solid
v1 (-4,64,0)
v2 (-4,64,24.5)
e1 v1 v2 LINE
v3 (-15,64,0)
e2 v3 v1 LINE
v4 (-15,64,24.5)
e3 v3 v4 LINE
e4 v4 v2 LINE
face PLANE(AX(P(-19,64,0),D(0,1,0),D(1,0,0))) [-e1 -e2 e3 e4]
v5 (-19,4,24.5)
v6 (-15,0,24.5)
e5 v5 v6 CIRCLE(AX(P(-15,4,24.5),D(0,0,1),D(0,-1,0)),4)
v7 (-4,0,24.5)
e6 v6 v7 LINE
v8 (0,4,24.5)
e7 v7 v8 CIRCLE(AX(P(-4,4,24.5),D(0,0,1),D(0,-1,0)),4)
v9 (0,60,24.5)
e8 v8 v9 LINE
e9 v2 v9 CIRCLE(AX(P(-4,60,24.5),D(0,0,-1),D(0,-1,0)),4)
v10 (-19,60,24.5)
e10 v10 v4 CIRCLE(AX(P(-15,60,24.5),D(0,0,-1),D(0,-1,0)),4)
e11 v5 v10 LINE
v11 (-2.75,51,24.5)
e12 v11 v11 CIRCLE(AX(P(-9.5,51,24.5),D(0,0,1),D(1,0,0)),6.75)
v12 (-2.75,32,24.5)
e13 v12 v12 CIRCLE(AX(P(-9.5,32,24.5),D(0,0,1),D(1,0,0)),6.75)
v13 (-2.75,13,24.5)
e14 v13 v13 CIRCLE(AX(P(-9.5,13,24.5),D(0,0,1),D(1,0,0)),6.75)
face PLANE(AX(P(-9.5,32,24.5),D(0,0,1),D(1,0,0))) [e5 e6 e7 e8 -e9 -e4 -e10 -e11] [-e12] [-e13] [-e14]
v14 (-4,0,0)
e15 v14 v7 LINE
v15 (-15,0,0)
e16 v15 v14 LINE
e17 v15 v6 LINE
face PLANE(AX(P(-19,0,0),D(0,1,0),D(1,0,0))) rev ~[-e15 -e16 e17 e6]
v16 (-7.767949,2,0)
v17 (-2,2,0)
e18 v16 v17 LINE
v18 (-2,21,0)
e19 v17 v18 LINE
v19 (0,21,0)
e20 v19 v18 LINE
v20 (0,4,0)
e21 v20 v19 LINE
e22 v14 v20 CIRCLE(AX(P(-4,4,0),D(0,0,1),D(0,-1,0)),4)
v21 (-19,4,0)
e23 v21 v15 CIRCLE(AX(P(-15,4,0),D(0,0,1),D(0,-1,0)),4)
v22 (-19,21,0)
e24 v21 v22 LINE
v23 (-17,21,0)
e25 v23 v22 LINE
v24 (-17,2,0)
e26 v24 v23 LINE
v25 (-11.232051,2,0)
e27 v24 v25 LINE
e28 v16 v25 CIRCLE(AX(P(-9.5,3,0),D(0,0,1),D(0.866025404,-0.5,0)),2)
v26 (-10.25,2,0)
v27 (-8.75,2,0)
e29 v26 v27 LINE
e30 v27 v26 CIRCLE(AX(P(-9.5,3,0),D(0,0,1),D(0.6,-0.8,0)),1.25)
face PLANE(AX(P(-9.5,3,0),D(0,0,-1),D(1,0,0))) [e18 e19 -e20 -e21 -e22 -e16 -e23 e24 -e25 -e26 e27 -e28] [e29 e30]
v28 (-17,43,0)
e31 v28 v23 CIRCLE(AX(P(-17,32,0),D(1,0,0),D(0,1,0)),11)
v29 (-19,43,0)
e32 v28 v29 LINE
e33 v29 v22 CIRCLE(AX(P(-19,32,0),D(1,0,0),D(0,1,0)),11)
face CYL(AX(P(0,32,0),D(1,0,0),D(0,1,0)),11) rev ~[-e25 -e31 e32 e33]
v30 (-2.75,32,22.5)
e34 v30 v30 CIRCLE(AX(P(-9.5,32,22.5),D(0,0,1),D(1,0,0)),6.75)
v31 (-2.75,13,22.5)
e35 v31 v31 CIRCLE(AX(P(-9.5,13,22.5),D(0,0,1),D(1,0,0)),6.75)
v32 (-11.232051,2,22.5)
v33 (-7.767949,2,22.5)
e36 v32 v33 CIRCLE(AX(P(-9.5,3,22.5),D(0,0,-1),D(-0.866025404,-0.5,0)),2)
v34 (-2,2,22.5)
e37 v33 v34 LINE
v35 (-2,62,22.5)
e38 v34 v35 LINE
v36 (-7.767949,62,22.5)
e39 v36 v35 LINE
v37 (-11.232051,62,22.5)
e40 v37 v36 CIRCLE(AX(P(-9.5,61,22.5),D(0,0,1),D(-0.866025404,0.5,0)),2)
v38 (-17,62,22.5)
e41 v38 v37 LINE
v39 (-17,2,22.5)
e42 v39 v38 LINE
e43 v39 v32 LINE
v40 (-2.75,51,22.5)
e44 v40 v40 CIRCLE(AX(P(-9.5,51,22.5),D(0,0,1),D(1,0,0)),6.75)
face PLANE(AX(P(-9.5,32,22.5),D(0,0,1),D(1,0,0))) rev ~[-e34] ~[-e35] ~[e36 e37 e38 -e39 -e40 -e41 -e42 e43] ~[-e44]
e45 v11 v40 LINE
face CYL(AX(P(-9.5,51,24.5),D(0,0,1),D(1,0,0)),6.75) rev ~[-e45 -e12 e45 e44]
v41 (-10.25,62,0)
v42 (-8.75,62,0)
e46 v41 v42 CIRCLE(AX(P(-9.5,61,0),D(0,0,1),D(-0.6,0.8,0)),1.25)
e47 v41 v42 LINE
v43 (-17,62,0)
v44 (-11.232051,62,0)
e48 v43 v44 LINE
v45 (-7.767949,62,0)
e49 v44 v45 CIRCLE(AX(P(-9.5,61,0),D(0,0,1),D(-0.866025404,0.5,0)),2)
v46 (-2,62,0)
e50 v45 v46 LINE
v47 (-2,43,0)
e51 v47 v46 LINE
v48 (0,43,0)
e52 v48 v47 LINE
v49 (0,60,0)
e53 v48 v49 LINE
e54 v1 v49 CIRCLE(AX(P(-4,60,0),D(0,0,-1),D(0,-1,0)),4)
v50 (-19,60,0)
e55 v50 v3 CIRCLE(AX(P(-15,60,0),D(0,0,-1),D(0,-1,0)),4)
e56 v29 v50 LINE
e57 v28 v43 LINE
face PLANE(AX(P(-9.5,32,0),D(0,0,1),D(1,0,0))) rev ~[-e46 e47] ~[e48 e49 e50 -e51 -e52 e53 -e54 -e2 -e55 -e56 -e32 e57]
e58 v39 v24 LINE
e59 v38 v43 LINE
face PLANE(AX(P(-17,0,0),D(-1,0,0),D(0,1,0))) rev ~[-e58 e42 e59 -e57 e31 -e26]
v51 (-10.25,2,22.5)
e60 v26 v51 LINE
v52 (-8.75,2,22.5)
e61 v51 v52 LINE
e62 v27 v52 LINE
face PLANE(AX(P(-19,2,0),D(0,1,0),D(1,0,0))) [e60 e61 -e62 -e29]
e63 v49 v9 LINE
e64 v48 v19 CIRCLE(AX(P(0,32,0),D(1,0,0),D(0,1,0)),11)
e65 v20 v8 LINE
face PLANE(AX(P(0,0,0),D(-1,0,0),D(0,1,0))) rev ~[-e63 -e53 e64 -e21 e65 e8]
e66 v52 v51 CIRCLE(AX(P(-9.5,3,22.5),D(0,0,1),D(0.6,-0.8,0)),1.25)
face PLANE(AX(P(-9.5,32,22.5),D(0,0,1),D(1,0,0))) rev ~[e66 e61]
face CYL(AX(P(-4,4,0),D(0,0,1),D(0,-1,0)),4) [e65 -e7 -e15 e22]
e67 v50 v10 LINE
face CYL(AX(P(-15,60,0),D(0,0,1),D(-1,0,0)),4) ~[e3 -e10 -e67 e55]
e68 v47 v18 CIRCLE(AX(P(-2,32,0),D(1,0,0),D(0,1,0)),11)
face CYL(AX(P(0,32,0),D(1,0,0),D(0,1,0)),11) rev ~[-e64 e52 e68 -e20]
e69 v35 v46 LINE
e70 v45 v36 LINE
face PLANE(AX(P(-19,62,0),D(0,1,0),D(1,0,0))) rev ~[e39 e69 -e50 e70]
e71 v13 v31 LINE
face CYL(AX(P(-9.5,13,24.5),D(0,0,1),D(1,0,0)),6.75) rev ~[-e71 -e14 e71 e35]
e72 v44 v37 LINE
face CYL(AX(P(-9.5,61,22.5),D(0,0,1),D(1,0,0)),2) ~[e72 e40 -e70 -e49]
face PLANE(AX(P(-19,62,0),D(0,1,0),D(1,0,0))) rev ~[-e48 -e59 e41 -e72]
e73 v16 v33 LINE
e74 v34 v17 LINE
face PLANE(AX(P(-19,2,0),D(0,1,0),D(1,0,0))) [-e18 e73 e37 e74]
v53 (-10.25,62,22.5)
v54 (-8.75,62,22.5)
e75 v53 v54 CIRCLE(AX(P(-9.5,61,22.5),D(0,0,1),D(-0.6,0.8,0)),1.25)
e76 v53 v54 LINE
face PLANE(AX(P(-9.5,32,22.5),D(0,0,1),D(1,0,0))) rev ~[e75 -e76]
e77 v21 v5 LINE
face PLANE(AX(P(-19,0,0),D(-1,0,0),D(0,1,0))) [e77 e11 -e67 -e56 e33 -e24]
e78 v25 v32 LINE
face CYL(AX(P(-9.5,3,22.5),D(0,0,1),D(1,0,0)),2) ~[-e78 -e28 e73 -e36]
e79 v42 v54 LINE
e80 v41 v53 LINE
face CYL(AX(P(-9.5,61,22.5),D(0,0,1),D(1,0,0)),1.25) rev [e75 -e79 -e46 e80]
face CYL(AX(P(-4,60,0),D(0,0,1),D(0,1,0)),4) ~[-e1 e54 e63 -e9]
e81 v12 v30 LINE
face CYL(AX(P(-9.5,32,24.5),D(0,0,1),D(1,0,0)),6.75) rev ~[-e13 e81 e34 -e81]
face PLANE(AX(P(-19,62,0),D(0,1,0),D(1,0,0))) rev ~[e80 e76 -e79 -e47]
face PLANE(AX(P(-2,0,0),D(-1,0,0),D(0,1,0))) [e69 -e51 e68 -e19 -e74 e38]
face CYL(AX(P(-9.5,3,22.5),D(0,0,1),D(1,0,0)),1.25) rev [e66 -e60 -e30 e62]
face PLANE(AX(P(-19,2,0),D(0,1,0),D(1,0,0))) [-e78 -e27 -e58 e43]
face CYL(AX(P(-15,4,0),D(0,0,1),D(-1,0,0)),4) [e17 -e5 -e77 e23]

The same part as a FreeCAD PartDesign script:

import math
import FreeCAD as App
import Part
import Sketcher
from FreeCAD import Vector
Q = App.Units.Quantity


def edges_at(feature, points):
    """Names of the edges that pass closest to the given points."""
    edges = feature.Shape.Edges
    near = lambda p: min(range(len(edges)), key=lambda i: edges[i].distToShape(Part.Vertex(*p))[0])
    return sorted({f"Edge{near(p) + 1}" for p in points})


def faces_at(feature, points):
    """Names of the faces that lie closest to the given points."""
    faces = feature.Shape.Faces
    near = lambda p: min(range(len(faces)), key=lambda i: faces[i].distToShape(Part.Vertex(*p))[0])
    return sorted({f"Face{near(p) + 1}" for p in points})


def add_polygon(sketch, points):
    """Adds a closed chain of lines whose ends are joined by coincident constraints."""
    first, n = sketch.GeometryCount, len(points)
    for a, b in zip(points, points[1:] + points[:1]):
        sketch.addGeometry(Part.LineSegment(App.Vector(*a, 0), App.Vector(*b, 0)), False)
    for i in range(n):
        sketch.addConstraint(Sketcher.Constraint("Coincident", first + i, 2, first + (i + 1) % n, 1))

doc = App.newDocument("Part")
body = doc.addObject("PartDesign::Body", "Body")

sketch1 = doc.addObject("Sketcher::SketchObject", "Sketch")
body.addObject(sketch1)
sketch1.AttachmentSupport = (doc.XY_Plane, [""])
sketch1.MapMode = "FlatFace"
add_polygon(sketch1, [(-19, 64), (-19, 0), (0, 0), (0, 64)])
sketch1.addConstraint([
    Sketcher.Constraint("Vertical", 0),
    Sketcher.Constraint("Horizontal", 1),
    Sketcher.Constraint("Vertical", 2),
    Sketcher.Constraint("Horizontal", 3),
    Sketcher.Constraint("Coincident", 1, 2, -1, 1),
    Sketcher.Constraint("DistanceX", 1, 1, 1, 2, Q("19 mm")),
    Sketcher.Constraint("DistanceY", 0, 2, 0, 1, Q("64 mm")),
])
pad1 = doc.addObject("PartDesign::Pad", "Pad")
body.addObject(pad1)
pad1.Profile = sketch1
pad1.Length = 24.5

sketch2 = doc.addObject("Sketcher::SketchObject", "Sketch001")
body.addObject(sketch2)
sketch2.AttachmentSupport = (doc.YZ_Plane, [""])
sketch2.MapMode = "FlatFace"
sketch2.addGeometry([
    Part.LineSegment(Vector(21, 0, 0), Vector(43, 0, 0)),
    Part.ArcOfCircle(Part.Circle(Vector(32, 0, 0), Vector(0, 0, 1), 11), math.radians(0), math.radians(180)),
], False)
sketch2.addConstraint([
    Sketcher.Constraint("Coincident", 0, 1, 1, 2),
    Sketcher.Constraint("Coincident", 1, 1, 0, 2),
    Sketcher.Constraint("Horizontal", 0),
    Sketcher.Constraint("PointOnObject", 1, 3, -1),
    Sketcher.Constraint("PointOnObject", 0, 1, -1),
    Sketcher.Constraint("Radius", 1, Q("11 mm")),
    Sketcher.Constraint("DistanceX", -1, 1, 1, 3, Q("32 mm")),
])
pocket1 = doc.addObject("PartDesign::Pocket", "Pocket")
body.addObject(pocket1)
pocket1.Profile = sketch2
pocket1.Length = 25
doc.recompute()

thickness = doc.addObject("PartDesign::Thickness", "Thickness")
body.addObject(thickness)
thickness.Base = (pocket1, faces_at(pocket1, [(-9.5, 32, 11), (-9.5, 10.5, 0), (-9.5, 53.5, 0)]))
thickness.Value = 2
thickness.Reversed = True
thickness.Join = "Arc"
doc.recompute()

fillet = doc.addObject("PartDesign::Fillet", "Fillet")
body.addObject(fillet)
fillet.Base = (thickness, edges_at(thickness, [
    (0, 0, 12.25),
    (0, 64, 12.25),
    (-19, 64, 12.25),
    (-19, 0, 12.25),
]))
fillet.Radius = 4

sketch3 = doc.addObject("Sketcher::SketchObject", "Sketch002")
body.addObject(sketch3)
sketch3.AttachmentSupport = (doc.XY_Plane, [""])
sketch3.MapMode = "FlatFace"
sketch3.AttachmentOffset = App.Placement(Vector(0, 0, 24.5), App.Rotation())
sketch3.addGeometry(Part.Circle(Vector(-9.5, 32, 0), Vector(0, 0, 1), 6.75), False)
sketch3.addConstraint([
    Sketcher.Constraint("Diameter", 0, Q("13.5 mm")),
    Sketcher.Constraint("DistanceY", -1, 1, 0, 3, Q("32 mm")),
    Sketcher.Constraint("DistanceX", 0, 3, -1, 1, Q("9.5 mm")),
])
pocket2 = doc.addObject("PartDesign::Pocket", "Pocket001")
body.addObject(pocket2)
pocket2.Profile = sketch3
pocket2.Length = 25

sketch4 = doc.addObject("Sketcher::SketchObject", "Sketch003")
body.addObject(sketch4)
sketch4.AttachmentSupport = (doc.XY_Plane, [""])
sketch4.MapMode = "FlatFace"
sketch4.AttachmentOffset = App.Placement(Vector(0, 0, 22.5), App.Rotation())
sketch4.addGeometry([
    Part.Circle(Vector(-9.5, 3, 0), Vector(0, 0, 1), 2),
    Part.Circle(Vector(-9.5, 3, 0), Vector(0, 0, 1), 1.25),
    Part.Circle(Vector(-9.5, 61, 0), Vector(0, 0, 1), 2),
    Part.Circle(Vector(-9.5, 61, 0), Vector(0, 0, 1), 1.25),
], False)
sketch4.addConstraint([
    Sketcher.Constraint("Coincident", 1, 3, 0, 3),
    Sketcher.Constraint("Coincident", 3, 3, 2, 3),
    Sketcher.Constraint("Equal", 0, 2),
    Sketcher.Constraint("Equal", 1, 3),
    Sketcher.Constraint("Vertical", 1, 3, 2, 3),
    Sketcher.Constraint("Diameter", 0, Q("4 mm")),
    Sketcher.Constraint("Diameter", 1, Q("2.5 mm")),
    Sketcher.Constraint("DistanceY", -1, 1, 0, 3, Q("3 mm")),
    Sketcher.Constraint("DistanceY", -1, 1, 2, 3, Q("61 mm")),
    Sketcher.Constraint("DistanceX", 0, 3, -1, 1, Q("9.5 mm")),
])
pad2 = doc.addObject("PartDesign::Pad", "Pad001")
body.addObject(pad2)
pad2.Profile = sketch4
pad2.Length = 22.5
pad2.Reversed = True

sketch5 = doc.addObject("Sketcher::SketchObject", "Sketch004")
body.addObject(sketch5)
sketch5.AttachmentSupport = (doc.XY_Plane, [""])
sketch5.MapMode = "FlatFace"
sketch5.AttachmentOffset = App.Placement(Vector(0, 0, 24.5), App.Rotation())
sketch5.addGeometry([
    Part.Circle(Vector(-9.5, 51, 0), Vector(0, 0, 1), 6.75),
    Part.Circle(Vector(-9.5, 13, 0), Vector(0, 0, 1), 6.75),
], False)
sketch5.addConstraint([
    Sketcher.Constraint("Equal", 0, 1),
    Sketcher.Constraint("Vertical", 0, 3, 1, 3),
    Sketcher.Constraint("Diameter", 0, Q("13.5 mm")),
    Sketcher.Constraint("DistanceY", -1, 1, 0, 3, Q("51 mm")),
    Sketcher.Constraint("DistanceY", -1, 1, 1, 3, Q("13 mm")),
    Sketcher.Constraint("DistanceX", 0, 3, -1, 1, Q("9.5 mm")),
])
pocket3 = doc.addObject("PartDesign::Pocket", "Pocket002")
body.addObject(pocket3)
pocket3.Profile = sketch5
pocket3.Length = 25

doc.recompute()
